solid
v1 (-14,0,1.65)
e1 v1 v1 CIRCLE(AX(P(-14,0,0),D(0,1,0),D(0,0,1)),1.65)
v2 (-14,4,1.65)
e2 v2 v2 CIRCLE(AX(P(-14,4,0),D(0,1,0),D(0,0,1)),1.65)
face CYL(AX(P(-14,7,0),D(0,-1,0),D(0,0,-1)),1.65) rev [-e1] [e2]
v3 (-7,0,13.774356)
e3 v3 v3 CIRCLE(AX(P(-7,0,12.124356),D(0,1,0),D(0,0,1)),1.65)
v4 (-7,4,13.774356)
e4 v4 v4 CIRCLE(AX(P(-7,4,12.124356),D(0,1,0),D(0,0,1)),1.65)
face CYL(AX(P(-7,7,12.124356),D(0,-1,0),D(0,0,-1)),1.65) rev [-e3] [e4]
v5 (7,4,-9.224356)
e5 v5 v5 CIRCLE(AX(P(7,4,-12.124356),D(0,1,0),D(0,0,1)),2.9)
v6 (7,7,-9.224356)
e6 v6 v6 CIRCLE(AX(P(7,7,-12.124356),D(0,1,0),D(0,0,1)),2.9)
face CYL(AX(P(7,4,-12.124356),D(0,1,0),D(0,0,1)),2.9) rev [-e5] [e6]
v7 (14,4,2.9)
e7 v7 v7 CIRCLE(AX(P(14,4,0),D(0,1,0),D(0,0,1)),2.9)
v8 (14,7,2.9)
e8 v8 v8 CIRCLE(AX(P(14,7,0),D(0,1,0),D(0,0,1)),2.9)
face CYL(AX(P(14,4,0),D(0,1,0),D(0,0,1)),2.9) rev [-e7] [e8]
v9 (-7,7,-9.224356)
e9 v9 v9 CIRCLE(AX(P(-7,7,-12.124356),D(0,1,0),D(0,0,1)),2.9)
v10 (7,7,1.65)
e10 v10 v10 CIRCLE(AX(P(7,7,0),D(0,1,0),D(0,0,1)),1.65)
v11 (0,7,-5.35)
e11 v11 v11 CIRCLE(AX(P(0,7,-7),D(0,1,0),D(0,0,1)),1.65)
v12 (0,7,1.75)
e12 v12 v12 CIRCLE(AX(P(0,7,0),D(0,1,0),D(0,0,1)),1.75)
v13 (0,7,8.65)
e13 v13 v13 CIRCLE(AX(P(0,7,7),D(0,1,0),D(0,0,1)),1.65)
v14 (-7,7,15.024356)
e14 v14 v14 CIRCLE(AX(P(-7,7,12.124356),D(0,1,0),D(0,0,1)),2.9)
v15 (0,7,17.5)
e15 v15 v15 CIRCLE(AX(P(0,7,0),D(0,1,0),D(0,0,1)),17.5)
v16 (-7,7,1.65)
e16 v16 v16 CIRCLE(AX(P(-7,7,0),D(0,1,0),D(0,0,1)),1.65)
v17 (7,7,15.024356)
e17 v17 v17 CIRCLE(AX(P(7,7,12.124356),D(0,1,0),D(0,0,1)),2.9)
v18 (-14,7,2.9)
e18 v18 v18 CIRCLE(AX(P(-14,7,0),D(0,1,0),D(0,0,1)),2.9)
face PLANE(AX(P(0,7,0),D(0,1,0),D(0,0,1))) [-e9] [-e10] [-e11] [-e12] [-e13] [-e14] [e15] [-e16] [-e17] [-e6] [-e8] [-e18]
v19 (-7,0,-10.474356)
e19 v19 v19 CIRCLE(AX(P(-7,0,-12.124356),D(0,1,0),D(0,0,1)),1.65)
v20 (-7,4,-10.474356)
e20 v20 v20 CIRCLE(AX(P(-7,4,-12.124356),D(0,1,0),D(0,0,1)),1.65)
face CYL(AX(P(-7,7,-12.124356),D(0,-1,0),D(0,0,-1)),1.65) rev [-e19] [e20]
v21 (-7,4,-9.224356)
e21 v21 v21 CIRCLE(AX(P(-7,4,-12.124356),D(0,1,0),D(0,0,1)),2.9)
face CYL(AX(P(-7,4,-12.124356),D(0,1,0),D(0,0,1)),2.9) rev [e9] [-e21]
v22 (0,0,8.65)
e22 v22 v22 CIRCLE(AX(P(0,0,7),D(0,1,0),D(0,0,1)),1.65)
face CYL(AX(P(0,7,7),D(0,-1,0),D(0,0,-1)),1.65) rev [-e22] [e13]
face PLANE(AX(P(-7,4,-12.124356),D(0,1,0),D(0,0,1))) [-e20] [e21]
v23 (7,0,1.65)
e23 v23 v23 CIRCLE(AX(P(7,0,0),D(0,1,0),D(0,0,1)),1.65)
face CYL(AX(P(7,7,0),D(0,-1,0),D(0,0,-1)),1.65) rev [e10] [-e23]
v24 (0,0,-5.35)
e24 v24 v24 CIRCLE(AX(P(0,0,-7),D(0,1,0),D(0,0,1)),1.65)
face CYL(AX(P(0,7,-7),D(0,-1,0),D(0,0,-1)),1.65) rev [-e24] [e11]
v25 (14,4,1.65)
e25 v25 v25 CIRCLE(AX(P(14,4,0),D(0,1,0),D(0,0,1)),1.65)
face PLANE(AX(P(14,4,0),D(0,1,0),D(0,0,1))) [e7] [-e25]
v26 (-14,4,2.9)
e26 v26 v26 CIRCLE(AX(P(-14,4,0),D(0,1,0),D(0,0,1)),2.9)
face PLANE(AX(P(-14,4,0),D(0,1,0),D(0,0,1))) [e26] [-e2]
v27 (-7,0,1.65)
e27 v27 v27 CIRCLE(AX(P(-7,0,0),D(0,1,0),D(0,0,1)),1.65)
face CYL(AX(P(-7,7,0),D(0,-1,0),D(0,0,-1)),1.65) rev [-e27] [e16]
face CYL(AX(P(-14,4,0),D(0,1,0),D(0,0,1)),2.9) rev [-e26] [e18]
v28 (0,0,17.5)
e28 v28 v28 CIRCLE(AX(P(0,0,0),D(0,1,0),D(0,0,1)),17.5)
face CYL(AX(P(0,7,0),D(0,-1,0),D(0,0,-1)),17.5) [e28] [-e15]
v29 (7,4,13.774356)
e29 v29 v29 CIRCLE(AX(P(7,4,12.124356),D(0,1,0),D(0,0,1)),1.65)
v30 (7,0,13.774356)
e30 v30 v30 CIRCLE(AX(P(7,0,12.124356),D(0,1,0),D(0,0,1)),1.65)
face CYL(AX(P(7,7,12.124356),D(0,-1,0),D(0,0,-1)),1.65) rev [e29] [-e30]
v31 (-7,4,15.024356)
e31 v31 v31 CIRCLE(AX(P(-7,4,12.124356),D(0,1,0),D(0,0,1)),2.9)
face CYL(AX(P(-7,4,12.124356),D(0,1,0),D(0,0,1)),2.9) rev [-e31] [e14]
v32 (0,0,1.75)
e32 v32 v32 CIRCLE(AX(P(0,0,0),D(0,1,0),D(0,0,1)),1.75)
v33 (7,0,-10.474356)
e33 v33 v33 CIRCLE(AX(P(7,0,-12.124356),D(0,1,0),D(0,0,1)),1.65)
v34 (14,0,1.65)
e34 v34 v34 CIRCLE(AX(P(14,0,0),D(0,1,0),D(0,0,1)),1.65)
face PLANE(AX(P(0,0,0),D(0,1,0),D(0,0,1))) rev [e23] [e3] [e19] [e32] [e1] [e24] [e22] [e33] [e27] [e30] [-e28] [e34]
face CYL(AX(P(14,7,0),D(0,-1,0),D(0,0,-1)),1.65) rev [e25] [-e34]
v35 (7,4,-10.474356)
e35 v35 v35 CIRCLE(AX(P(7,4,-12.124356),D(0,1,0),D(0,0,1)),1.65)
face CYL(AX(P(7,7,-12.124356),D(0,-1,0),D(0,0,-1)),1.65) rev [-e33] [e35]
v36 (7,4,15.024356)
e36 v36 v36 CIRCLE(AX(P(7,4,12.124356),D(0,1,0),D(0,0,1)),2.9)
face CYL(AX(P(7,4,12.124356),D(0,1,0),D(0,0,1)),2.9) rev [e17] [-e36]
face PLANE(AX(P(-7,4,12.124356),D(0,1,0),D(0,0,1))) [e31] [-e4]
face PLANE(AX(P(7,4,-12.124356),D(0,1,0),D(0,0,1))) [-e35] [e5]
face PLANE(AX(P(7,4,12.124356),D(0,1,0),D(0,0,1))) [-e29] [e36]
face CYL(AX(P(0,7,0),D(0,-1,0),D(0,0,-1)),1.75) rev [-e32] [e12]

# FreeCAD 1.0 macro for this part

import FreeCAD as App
import Part
import Sketcher

V = App.Vector

doc = App.newDocument("Part")
params = doc.addObject("Spreadsheet::Sheet", "Params")
for row, (alias, value) in enumerate([
    ("sketch1_diameter", "35 mm"),
    ("sketch1_diameter2", "3.3 mm"),
    ("sketch1_diameter3", "3.5 mm"),
    ("pad1_length", "7 mm"),
    ("sketch2_diameter", "5.8 mm"),
    ("pocket1_length", "3 mm"),
], start=1):
    params.set(f"A{row}", alias)
    params.set(f"B{row}", "=" + value)
    params.setAlias(f"B{row}", alias)

body = doc.addObject("PartDesign::Body", "Body")

# Sketch on XZ plane
sketch1 = doc.addObject("Sketcher::SketchObject", "Sketch")
body.addObject(sketch1)
sketch1.AttachmentSupport = (doc.XZ_Plane, [""])
sketch1.MapMode = "FlatFace"
sketch1.addGeometry([
    Part.Circle(V(0, 0, 0), V(0, 0, 1), 17.5),  # 0
    Part.Circle(V(-7, -12.1, 0), V(0, 0, 1), 1.6),  # 1
    Part.Circle(V(0, -7, 0), V(0, 0, 1), 1.6),  # 2
    Part.Circle(V(-14, 0, 0), V(0, 0, 1), 1.6),  # 3
    Part.Circle(V(-7, 0, 0), V(0, 0, 1), 1.6),  # 4
    Part.Circle(V(-7, 12.1, 0), V(0, 0, 1), 1.6),  # 5
    Part.Circle(V(7, -12.1, 0), V(0, 0, 1), 1.6),  # 6
    Part.Circle(V(0, 0, 0), V(0, 0, 1), 1.8),  # 7
    Part.Circle(V(7, 0, 0), V(0, 0, 1), 1.6),  # 8
    Part.Circle(V(0, 7, 0), V(0, 0, 1), 1.6),  # 9
    Part.Circle(V(7, 12.1, 0), V(0, 0, 1), 1.6),  # 10
    Part.Circle(V(14, 0, 0), V(0, 0, 1), 1.6),  # 11
], False)
sketch1.addConstraint([
    Sketcher.Constraint("Coincident", 0, 3, -1, 1),
    Sketcher.Constraint("Coincident", 7, 3, -1, 1),
    Sketcher.Constraint("Equal", 1, 2),
    Sketcher.Constraint("Equal", 2, 3),
    Sketcher.Constraint("Equal", 3, 4),
    Sketcher.Constraint("Equal", 4, 5),
    Sketcher.Constraint("Equal", 5, 6),
    Sketcher.Constraint("Equal", 6, 8),
    Sketcher.Constraint("Equal", 8, 9),
    Sketcher.Constraint("Equal", 9, 10),
    Sketcher.Constraint("Equal", 10, 11),
    Sketcher.Constraint("Symmetric", 5, 3, 6, 3, -1, 1),
    Sketcher.Constraint("Symmetric", 4, 3, 8, 3, -1, 1),
    Sketcher.Constraint("Symmetric", 2, 3, 9, 3, -1, 1),
    Sketcher.Constraint("Symmetric", 1, 3, 10, 3, -1, 1),
    Sketcher.Constraint("Symmetric", 3, 3, 11, 3, -1, 1),
    Sketcher.Constraint("Symmetric", 1, 3, 6, 3, -2),
    Sketcher.Constraint("PointOnObject", 2, 3, -2),
    Sketcher.Constraint("PointOnObject", 3, 3, -1),
    Sketcher.Constraint("PointOnObject", 4, 3, -1),
    Sketcher.Constraint("Vertical", 1, 3, 4, 3),
    Sketcher.Constraint("Diameter", 0, 35.0),
    Sketcher.Constraint("Diameter", 1, 3.3),
    Sketcher.Constraint("Diameter", 7, 3.5),
    Sketcher.Constraint("DistanceX", 1, 3, -1, 1, 7.0),
    Sketcher.Constraint("DistanceY", 2, 3, -1, 1, 7.0),
    Sketcher.Constraint("DistanceX", 3, 3, -1, 1, 14.0),
    Sketcher.Constraint("DistanceY", 1, 3, 5, 3, 24.248711),
])
sketch1.setExpression("Constraints[21]", "Params.sketch1_diameter")
sketch1.setExpression("Constraints[22]", "Params.sketch1_diameter2")
sketch1.setExpression("Constraints[23]", "Params.sketch1_diameter3")
pad1 = doc.addObject("PartDesign::Pad", "Pad")
body.addObject(pad1)
pad1.Profile = sketch1
pad1.setExpression("Length", "Params.pad1_length")
pad1.Reversed = True

# Sketch on XZ plane
sketch2 = doc.addObject("Sketcher::SketchObject", "Sketch001")
body.addObject(sketch2)
sketch2.AttachmentSupport = (doc.XZ_Plane, [""])
sketch2.MapMode = "FlatFace"
sketch2.AttachmentOffset = App.Placement(V(0, 0, -7), App.Rotation())
sketch2.addGeometry([
    Part.Circle(V(-14, 0, 0), V(0, 0, 1), 2.9),  # 0
    Part.Circle(V(-7, -12.1, 0), V(0, 0, 1), 2.9),  # 1
    Part.Circle(V(7, -12.1, 0), V(0, 0, 1), 2.9),  # 2
    Part.Circle(V(14, 0, 0), V(0, 0, 1), 2.9),  # 3
    Part.Circle(V(7, 12.1, 0), V(0, 0, 1), 2.9),  # 4
    Part.Circle(V(-7, 12.1, 0), V(0, 0, 1), 2.9),  # 5
], False)
sketch2.addConstraint([
    Sketcher.Constraint("Equal", 0, 1),
    Sketcher.Constraint("Equal", 1, 2),
    Sketcher.Constraint("Equal", 2, 3),
    Sketcher.Constraint("Equal", 3, 4),
    Sketcher.Constraint("Equal", 4, 5),
    Sketcher.Constraint("Symmetric", 0, 3, 3, 3, -1, 1),
    Sketcher.Constraint("Symmetric", 1, 3, 4, 3, -1, 1),
    Sketcher.Constraint("Symmetric", 2, 3, 5, 3, -1, 1),
    Sketcher.Constraint("Symmetric", 1, 3, 2, 3, -2),
    Sketcher.Constraint("PointOnObject", 0, 3, -1),
    Sketcher.Constraint("Diameter", 0, 5.8),
    Sketcher.Constraint("DistanceX", 0, 3, -1, 1, 14.0),
    Sketcher.Constraint("DistanceX", 1, 3, -1, 1, 7.0),
    Sketcher.Constraint("DistanceY", 2, 3, 4, 3, 24.248711),
])
sketch2.setExpression("Constraints[10]", "Params.sketch2_diameter")
pocket1 = doc.addObject("PartDesign::Pocket", "Pocket")
body.addObject(pocket1)
pocket1.Profile = sketch2
pocket1.setExpression("Length", "Params.pocket1_length")
pocket1.Reversed = True

doc.recompute()
